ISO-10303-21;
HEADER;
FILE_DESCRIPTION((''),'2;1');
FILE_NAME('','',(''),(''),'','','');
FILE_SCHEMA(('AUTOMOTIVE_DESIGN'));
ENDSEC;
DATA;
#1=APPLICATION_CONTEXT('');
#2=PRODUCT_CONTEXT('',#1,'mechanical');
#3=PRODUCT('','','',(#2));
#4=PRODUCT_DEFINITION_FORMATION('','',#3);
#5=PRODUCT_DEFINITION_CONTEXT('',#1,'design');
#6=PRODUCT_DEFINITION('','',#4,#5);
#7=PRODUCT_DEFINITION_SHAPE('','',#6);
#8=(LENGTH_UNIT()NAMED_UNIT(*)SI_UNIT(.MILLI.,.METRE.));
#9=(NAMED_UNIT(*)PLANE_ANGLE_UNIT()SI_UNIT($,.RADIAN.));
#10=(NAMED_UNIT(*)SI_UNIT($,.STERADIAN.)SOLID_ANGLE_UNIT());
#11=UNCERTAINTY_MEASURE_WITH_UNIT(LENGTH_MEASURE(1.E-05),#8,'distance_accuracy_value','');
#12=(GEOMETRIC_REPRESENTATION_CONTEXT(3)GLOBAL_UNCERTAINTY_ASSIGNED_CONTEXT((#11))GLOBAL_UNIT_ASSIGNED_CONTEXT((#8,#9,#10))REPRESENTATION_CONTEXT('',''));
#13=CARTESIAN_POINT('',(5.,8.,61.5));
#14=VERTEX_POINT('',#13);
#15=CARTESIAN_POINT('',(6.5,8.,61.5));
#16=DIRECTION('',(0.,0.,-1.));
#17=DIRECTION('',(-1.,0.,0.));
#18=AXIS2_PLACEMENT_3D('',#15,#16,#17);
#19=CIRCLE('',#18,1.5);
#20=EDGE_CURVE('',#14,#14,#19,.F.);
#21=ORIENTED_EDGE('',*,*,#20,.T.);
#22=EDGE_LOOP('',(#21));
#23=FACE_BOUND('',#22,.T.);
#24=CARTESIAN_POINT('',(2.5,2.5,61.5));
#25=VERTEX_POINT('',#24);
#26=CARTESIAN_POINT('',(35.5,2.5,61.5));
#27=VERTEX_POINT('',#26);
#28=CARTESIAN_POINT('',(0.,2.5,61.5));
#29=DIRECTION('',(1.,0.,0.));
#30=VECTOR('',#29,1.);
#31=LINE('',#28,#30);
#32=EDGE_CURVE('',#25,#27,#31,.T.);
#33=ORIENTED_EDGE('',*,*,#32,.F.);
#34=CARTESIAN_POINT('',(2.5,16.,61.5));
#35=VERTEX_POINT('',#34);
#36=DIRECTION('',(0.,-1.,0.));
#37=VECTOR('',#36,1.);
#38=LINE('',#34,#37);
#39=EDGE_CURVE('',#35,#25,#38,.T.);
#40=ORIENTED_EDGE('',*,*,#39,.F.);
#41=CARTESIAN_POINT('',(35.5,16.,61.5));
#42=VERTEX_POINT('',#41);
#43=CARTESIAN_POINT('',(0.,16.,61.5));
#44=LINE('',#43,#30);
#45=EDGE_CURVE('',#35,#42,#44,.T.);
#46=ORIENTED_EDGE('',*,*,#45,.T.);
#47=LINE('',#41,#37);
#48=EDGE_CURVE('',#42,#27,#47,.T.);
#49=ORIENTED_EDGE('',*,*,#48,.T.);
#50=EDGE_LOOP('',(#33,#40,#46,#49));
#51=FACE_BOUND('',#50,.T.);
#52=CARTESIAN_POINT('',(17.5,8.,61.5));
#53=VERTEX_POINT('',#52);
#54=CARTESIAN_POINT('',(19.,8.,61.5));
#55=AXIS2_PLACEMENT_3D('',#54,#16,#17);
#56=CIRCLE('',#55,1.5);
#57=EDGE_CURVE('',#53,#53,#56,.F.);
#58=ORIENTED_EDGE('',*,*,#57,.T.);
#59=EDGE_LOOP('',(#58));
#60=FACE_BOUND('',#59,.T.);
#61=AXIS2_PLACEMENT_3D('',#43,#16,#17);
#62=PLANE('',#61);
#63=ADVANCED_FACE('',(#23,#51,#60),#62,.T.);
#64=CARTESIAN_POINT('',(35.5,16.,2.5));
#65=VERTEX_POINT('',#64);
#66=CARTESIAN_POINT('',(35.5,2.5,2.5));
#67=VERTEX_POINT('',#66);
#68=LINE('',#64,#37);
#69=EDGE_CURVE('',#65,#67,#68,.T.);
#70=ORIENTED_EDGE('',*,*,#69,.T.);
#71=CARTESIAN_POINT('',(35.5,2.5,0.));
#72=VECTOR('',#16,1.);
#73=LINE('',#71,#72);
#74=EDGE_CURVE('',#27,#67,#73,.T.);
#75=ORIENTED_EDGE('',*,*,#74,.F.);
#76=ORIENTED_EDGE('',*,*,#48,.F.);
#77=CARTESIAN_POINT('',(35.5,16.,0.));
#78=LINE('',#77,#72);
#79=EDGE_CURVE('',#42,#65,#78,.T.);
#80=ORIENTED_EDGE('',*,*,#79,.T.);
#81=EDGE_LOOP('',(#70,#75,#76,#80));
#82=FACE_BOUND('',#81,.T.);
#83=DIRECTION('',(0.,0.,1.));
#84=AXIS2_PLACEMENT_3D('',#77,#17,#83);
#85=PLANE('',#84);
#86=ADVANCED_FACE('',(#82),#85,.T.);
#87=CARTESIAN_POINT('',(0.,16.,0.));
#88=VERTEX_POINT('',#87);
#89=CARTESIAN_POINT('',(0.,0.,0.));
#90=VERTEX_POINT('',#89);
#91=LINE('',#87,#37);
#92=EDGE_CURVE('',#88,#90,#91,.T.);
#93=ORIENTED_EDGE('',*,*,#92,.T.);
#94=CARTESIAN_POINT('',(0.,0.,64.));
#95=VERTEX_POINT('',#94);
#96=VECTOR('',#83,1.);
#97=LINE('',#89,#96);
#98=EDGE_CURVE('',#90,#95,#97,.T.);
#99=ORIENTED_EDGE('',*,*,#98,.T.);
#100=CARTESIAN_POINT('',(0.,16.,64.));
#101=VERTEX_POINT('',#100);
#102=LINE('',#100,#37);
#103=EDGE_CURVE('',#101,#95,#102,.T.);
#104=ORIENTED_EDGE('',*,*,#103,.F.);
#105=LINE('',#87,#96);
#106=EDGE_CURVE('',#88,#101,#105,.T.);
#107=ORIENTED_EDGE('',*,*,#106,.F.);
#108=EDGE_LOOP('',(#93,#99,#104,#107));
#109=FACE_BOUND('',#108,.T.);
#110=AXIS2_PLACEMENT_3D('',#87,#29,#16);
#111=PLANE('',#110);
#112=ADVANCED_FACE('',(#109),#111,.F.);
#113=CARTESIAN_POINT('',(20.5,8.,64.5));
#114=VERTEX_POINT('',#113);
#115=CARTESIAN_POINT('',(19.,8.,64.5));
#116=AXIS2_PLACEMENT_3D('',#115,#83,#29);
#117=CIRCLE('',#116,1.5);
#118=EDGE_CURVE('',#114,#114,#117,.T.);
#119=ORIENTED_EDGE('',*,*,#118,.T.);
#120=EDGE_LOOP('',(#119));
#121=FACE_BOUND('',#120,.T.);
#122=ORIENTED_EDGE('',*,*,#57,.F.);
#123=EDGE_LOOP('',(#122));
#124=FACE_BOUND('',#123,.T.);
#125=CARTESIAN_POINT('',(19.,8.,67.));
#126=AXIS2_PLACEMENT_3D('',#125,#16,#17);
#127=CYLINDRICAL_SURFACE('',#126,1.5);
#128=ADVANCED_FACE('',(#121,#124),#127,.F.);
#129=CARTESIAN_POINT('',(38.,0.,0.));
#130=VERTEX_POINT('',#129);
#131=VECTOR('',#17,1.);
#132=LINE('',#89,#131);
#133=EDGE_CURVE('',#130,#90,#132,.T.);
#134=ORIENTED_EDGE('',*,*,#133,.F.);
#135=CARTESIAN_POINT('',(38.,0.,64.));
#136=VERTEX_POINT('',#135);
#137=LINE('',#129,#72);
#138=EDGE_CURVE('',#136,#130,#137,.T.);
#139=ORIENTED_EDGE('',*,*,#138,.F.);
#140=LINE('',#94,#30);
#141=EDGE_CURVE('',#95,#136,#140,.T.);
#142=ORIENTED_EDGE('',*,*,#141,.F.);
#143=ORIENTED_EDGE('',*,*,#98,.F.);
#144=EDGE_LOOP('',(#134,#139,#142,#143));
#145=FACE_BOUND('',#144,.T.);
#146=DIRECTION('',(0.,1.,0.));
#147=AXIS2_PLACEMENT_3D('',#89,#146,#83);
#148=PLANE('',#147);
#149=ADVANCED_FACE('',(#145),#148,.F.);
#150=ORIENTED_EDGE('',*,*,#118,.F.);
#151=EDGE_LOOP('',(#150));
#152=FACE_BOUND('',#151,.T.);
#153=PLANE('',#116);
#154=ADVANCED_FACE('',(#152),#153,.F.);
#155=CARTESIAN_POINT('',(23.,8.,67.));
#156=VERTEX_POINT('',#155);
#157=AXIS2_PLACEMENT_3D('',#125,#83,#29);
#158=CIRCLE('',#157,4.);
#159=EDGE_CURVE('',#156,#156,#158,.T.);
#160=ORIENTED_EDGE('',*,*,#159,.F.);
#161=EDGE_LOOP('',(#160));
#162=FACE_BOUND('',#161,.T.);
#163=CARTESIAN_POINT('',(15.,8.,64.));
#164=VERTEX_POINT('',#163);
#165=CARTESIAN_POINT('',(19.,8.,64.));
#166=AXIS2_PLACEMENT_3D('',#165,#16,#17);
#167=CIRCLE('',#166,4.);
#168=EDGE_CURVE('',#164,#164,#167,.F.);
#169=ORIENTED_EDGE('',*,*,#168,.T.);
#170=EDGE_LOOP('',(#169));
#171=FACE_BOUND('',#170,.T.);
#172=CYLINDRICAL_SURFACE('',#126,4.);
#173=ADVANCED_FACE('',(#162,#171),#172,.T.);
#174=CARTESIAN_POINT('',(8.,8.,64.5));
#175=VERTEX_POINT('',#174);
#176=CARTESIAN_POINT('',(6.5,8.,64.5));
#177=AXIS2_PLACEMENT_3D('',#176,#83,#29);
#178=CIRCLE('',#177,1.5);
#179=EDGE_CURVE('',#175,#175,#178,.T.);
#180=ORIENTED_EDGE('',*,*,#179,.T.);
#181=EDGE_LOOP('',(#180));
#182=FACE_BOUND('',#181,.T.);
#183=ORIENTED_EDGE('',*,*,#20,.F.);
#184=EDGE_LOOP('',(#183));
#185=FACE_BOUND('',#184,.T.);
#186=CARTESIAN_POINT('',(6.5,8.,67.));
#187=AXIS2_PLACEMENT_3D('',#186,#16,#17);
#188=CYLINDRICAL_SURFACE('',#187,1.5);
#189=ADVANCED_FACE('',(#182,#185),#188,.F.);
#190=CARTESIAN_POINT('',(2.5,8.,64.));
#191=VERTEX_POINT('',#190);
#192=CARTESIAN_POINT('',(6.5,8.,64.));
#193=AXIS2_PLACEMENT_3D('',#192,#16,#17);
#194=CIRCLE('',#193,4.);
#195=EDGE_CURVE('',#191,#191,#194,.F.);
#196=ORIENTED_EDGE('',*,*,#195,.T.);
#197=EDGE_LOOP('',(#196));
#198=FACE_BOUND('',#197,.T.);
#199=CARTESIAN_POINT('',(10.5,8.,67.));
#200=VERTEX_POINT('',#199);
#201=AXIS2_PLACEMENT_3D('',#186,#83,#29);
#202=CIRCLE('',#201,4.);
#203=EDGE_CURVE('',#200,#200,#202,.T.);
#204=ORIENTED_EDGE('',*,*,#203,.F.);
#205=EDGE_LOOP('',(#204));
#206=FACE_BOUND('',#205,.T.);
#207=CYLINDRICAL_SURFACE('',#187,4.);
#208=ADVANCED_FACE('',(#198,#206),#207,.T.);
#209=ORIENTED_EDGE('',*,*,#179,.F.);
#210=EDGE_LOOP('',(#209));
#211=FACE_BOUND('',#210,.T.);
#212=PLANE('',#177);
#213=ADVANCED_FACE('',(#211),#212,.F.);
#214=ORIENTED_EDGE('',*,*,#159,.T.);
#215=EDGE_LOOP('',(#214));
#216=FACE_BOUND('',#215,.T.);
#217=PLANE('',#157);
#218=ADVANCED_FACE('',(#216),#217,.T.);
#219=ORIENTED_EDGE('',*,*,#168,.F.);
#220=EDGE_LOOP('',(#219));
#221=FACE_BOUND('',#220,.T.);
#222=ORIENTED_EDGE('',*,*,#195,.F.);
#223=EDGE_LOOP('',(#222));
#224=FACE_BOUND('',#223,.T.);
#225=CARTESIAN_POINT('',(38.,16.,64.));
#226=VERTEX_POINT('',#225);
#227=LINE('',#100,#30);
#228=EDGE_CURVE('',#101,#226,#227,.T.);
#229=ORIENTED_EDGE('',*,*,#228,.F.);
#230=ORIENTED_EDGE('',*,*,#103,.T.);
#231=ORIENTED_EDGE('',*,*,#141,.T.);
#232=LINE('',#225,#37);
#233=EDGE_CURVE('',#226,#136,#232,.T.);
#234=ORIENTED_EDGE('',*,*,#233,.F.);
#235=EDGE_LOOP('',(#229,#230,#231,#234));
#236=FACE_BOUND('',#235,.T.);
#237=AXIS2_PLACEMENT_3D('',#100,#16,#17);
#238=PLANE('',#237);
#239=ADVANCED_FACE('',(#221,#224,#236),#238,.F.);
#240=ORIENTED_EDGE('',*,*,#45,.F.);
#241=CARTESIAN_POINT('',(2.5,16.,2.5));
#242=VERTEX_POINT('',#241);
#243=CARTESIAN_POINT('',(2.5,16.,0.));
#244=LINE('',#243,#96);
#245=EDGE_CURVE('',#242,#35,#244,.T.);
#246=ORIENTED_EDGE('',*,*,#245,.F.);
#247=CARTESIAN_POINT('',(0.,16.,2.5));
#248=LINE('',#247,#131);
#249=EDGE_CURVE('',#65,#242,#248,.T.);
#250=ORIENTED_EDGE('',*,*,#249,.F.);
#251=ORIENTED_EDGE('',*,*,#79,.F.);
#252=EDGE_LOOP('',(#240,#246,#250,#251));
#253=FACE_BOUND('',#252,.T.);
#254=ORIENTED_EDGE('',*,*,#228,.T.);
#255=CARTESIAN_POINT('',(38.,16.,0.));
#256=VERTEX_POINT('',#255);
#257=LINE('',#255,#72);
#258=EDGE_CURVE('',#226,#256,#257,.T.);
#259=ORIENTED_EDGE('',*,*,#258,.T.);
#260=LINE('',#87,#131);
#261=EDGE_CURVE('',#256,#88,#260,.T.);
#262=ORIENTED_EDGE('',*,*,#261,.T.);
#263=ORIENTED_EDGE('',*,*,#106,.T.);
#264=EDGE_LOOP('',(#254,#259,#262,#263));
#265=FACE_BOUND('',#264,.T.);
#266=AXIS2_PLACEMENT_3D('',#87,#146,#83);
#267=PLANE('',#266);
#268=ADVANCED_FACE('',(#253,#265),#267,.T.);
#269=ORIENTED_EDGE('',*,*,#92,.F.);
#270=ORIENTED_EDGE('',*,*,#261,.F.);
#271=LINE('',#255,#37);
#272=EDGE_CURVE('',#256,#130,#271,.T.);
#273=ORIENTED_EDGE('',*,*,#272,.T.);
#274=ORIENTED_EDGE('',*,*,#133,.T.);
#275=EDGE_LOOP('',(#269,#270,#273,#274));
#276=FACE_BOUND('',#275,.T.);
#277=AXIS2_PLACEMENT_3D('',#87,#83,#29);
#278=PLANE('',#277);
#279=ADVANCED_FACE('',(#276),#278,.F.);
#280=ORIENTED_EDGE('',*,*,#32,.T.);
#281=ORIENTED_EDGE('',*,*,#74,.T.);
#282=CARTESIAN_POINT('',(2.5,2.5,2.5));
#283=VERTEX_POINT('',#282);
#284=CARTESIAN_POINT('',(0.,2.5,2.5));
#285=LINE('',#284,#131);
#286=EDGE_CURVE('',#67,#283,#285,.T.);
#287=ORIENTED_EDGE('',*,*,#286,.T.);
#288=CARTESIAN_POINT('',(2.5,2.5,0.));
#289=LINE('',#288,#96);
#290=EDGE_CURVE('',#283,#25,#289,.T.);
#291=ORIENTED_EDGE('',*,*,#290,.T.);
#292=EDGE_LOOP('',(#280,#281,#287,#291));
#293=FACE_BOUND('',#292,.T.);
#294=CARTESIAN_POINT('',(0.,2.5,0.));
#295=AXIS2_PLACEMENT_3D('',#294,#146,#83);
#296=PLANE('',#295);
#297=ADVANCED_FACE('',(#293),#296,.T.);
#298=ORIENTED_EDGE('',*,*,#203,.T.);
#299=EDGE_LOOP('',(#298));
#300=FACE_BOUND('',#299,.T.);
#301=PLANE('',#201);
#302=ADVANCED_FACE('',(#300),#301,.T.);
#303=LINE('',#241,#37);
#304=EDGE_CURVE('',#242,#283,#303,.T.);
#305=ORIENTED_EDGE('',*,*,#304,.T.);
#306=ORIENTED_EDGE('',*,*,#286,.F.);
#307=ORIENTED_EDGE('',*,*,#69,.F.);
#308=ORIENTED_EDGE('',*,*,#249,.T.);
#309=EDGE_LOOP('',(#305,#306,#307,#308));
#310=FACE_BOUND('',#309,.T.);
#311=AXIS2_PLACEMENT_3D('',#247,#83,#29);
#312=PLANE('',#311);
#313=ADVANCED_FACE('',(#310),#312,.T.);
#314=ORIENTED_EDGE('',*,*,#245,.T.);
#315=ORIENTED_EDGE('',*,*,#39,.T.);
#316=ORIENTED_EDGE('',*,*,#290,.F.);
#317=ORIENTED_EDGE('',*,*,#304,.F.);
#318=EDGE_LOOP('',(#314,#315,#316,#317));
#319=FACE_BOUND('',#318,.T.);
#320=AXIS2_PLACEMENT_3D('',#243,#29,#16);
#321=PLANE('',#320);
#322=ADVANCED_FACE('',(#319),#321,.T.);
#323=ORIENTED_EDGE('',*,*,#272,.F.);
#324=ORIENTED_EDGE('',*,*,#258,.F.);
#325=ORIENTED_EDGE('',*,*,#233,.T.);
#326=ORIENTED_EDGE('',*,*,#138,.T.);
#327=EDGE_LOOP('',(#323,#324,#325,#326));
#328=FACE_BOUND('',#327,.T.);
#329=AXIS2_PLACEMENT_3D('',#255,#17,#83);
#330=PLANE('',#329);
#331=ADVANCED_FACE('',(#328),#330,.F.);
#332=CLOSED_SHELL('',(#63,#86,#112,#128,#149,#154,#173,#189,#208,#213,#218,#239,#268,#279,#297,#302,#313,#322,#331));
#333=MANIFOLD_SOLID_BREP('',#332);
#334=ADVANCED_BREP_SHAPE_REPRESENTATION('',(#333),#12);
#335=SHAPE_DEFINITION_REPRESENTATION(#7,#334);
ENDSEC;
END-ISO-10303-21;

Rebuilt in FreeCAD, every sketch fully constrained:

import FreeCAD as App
import Part
import Sketcher
from FreeCAD import Vector
Q = App.Units.Quantity


def faces_at(feature, points):
    """Names of the faces that lie closest to the given points."""
    faces = feature.Shape.Faces
    near = lambda p: min(range(len(faces)), key=lambda i: faces[i].distToShape(Part.Vertex(*p))[0])
    return sorted({f"Face{near(p) + 1}" for p in points})

doc = App.newDocument("Part")
body = doc.addObject("PartDesign::Body", "Body")

sketch1 = body.newObject("Sketcher::SketchObject", "Sketch")
sketch1.AttachmentSupport = (doc.getObject("XZ_Plane"), [""])
sketch1.MapMode = "FlatFace"
sketch1.addGeometry([
    Part.LineSegment(Vector(0, 0, 0), Vector(0, 64, 0)),
    Part.LineSegment(Vector(0, 64, 0), Vector(38, 64, 0)),
    Part.LineSegment(Vector(38, 64, 0), Vector(38, 0, 0)),
    Part.LineSegment(Vector(38, 0, 0), Vector(0, 0, 0)),
], False)
sketch1.addConstraint([
    Sketcher.Constraint("Coincident", 0, 2, 1, 1),
    Sketcher.Constraint("Coincident", 1, 2, 2, 1),
    Sketcher.Constraint("Coincident", 2, 2, 3, 1),
    Sketcher.Constraint("Coincident", 3, 2, 0, 1),
    Sketcher.Constraint("Vertical", 0),
    Sketcher.Constraint("Horizontal", 1),
    Sketcher.Constraint("Vertical", 2),
    Sketcher.Constraint("Horizontal", 3),
    Sketcher.Constraint("Coincident", 3, 2, -1, 1),
    Sketcher.Constraint("DistanceX", 1, 1, 1, 2, Q("38 mm")),
    Sketcher.Constraint("DistanceY", 0, 1, 0, 2, Q("64 mm")),
])
pad1 = body.newObject("PartDesign::Pad", "Pad")
pad1.Profile = sketch1
pad1.Length = 16
pad1.Reversed = True

sketch2 = body.newObject("Sketcher::SketchObject", "Sketch001")
sketch2.AttachmentSupport = (doc.getObject("XY_Plane"), [""])
sketch2.MapMode = "FlatFace"
sketch2.AttachmentOffset = App.Placement(Vector(0, 0, 64), App.Rotation())
sketch2.addGeometry([
    Part.Circle(Vector(19, 8, 0), Vector(0, 0, 1), 4),
    Part.Circle(Vector(6.5, 8, 0), Vector(0, 0, 1), 4),
], False)
sketch2.addConstraint([
    Sketcher.Constraint("Equal", 0, 1),
    Sketcher.Constraint("Horizontal", 0, 3, 1, 3),
    Sketcher.Constraint("Diameter", 0, Q("8 mm")),
    Sketcher.Constraint("DistanceX", -1, 1, 0, 3, Q("19 mm")),
    Sketcher.Constraint("DistanceY", -1, 1, 0, 3, Q("8 mm")),
    Sketcher.Constraint("DistanceX", -1, 1, 1, 3, Q("6.5 mm")),
])
pad2 = body.newObject("PartDesign::Pad", "Pad001")
pad2.Profile = sketch2
pad2.Length = 3
doc.recompute()

thickness = body.newObject("PartDesign::Thickness", "Thickness")
thickness.Base = (pad2, faces_at(pad2, [(19, 16, 32)]))
thickness.Value = 2.5
thickness.Reversed = True
thickness.Join = "Intersection"

doc.recompute()
